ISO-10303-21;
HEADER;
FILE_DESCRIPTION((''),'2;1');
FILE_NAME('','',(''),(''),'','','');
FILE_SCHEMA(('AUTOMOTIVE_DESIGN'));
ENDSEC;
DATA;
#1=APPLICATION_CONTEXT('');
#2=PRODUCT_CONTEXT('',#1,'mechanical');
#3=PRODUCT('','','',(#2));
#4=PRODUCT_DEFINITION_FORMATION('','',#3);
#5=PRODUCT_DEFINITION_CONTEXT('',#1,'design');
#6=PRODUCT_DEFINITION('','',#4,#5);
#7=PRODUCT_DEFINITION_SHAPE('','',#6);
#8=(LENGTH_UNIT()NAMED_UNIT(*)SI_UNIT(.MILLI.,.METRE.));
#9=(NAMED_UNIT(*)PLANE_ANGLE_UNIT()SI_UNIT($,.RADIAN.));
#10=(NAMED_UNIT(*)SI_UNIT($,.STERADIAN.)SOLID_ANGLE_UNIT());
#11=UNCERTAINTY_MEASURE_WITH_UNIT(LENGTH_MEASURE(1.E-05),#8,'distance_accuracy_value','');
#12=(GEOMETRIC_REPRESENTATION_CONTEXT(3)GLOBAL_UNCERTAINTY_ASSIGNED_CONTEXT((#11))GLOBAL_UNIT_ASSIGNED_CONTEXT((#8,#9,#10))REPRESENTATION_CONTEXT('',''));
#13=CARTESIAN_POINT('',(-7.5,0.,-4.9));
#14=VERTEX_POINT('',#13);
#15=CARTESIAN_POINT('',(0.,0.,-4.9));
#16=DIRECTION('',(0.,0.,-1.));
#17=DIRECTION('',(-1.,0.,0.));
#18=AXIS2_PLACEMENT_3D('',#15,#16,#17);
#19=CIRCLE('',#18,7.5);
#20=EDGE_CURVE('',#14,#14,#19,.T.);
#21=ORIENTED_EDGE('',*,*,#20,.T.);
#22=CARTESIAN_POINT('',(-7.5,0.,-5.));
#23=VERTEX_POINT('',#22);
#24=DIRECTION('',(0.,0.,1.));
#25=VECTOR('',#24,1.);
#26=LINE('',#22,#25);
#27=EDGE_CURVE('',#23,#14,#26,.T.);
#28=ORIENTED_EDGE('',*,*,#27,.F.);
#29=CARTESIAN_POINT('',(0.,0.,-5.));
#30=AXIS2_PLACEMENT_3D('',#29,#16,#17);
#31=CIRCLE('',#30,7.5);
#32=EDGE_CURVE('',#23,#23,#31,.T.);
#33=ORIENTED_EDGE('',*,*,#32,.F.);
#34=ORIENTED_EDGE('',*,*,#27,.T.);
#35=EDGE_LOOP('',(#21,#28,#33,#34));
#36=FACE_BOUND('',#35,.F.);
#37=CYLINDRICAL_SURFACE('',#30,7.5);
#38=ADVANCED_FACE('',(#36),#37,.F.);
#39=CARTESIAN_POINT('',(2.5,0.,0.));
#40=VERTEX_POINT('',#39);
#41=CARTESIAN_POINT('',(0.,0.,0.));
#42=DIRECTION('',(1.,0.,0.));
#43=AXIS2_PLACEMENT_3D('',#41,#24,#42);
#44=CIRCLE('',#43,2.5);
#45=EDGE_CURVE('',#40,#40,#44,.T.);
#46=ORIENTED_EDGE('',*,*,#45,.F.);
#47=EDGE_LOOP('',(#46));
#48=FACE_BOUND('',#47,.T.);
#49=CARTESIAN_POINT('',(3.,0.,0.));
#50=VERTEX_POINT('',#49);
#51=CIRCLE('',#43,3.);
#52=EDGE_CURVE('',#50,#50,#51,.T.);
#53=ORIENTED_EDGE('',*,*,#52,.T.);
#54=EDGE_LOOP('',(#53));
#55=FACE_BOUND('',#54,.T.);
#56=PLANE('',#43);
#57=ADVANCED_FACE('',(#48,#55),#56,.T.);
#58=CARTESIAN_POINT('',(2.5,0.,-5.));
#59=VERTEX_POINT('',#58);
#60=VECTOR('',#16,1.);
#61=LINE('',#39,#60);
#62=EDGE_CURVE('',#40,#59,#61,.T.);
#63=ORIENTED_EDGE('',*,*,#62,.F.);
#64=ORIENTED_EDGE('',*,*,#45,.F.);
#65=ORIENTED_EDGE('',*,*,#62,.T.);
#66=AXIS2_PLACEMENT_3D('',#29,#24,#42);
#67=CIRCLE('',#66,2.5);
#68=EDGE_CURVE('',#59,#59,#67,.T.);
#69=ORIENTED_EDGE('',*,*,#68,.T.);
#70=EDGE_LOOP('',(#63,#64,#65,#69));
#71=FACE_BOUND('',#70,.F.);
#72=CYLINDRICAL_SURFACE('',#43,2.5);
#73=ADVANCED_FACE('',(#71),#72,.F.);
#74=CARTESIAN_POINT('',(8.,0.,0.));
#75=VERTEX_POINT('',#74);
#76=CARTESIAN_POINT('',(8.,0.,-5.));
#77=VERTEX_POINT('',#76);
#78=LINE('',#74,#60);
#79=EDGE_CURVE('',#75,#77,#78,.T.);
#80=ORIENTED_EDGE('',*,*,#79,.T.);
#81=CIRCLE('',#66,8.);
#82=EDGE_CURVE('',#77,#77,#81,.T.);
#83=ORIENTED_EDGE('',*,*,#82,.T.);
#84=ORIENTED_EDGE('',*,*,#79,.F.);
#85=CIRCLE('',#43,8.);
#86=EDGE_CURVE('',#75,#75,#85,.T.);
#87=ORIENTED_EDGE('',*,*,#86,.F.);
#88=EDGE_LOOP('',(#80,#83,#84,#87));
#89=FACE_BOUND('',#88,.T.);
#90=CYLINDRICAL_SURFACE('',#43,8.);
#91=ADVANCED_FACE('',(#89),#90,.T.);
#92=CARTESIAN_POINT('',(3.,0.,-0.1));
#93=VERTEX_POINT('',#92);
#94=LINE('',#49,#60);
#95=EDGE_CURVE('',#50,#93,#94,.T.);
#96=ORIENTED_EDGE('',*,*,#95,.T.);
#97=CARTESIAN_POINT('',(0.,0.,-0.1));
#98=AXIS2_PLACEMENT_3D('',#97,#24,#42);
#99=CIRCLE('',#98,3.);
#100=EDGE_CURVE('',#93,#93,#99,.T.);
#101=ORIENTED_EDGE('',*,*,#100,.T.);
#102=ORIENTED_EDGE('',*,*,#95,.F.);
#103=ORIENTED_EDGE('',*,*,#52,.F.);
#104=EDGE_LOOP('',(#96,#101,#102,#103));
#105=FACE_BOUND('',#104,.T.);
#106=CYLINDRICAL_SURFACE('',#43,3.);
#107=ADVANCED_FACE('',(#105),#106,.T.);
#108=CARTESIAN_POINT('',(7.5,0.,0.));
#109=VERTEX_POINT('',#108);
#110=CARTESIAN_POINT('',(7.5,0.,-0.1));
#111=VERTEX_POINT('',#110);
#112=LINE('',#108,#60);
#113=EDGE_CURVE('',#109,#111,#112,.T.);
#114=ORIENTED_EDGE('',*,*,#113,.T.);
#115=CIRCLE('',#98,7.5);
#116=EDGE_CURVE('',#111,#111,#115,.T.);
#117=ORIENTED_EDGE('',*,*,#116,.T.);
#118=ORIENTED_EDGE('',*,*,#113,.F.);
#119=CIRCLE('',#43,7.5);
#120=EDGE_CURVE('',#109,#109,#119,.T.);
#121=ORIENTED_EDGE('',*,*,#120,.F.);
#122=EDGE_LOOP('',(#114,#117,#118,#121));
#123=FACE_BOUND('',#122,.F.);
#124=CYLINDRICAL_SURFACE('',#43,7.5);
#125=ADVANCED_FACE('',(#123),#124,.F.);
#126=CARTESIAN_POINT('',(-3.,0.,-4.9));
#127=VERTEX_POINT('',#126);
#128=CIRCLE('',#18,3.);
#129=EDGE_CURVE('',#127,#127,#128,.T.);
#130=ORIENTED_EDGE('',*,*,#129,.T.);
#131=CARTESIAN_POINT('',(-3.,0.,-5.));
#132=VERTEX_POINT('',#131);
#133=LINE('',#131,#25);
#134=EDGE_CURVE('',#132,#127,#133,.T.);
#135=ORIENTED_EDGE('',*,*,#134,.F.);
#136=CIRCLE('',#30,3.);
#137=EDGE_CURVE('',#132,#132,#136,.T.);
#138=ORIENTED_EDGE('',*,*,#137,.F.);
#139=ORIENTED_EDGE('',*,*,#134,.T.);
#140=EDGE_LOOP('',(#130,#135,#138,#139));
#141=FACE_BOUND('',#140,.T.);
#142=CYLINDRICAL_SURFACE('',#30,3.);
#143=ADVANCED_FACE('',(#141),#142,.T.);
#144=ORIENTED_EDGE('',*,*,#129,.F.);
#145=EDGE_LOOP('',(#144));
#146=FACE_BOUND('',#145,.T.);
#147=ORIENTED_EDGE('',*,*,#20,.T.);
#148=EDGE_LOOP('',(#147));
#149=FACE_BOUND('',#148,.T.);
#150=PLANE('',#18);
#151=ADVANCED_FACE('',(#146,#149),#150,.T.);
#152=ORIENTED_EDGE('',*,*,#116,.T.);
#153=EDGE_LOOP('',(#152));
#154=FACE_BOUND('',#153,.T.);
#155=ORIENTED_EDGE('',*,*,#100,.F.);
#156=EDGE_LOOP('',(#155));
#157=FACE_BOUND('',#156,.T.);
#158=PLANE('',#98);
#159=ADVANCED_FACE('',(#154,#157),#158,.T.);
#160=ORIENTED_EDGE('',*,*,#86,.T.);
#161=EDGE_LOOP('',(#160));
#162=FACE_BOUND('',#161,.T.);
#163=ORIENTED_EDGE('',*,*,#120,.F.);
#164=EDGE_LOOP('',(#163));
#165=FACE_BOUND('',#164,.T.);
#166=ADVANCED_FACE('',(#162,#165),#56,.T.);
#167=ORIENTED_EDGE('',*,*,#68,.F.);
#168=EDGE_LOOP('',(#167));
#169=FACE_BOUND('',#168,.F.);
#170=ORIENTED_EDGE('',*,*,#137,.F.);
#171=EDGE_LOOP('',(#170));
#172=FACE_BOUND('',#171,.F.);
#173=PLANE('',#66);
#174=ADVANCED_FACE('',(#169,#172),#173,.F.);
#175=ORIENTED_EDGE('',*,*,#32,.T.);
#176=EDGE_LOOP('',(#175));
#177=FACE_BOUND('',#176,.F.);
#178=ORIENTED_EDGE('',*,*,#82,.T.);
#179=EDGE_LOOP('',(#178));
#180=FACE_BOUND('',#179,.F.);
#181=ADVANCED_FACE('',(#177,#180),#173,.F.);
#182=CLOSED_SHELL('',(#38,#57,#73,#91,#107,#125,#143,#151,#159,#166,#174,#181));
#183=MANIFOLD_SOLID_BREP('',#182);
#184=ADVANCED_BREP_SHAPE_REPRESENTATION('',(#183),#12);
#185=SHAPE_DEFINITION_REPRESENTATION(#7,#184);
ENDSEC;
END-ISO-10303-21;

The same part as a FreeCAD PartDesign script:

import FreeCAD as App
import Part
import Sketcher

V = App.Vector
Q = App.Units.Quantity

doc = App.newDocument("Part")
body = doc.addObject("PartDesign::Body", "Body")

# Sketch on XY plane
sketch1 = doc.addObject("Sketcher::SketchObject", "Sketch")
body.addObject(sketch1)
sketch1.AttachmentSupport = (doc.XY_Plane, [""])
sketch1.MapMode = "FlatFace"
sketch1.addGeometry(Part.Circle(V(0, 0, 0), V(0, 0, 1), 8), False)
sketch1.addGeometry(Part.Circle(V(0, 0, 0), V(0, 0, 1), 2.5), False)
sketch1.addConstraint(Sketcher.Constraint("Coincident", 0, 3, -1, 1))
sketch1.addConstraint(Sketcher.Constraint("Coincident", 1, 3, -1, 1))
sketch1.addConstraint(Sketcher.Constraint("Diameter", 0, Q("16 mm")))
sketch1.addConstraint(Sketcher.Constraint("Diameter", 1, Q("5 mm")))
pad1 = doc.addObject("PartDesign::Pad", "Pad")
body.addObject(pad1)
pad1.Profile = sketch1
pad1.Length = 5
pad1.Reversed = True

# Sketch on XY plane
sketch2 = doc.addObject("Sketcher::SketchObject", "Sketch001")
body.addObject(sketch2)
sketch2.AttachmentSupport = (doc.XY_Plane, [""])
sketch2.MapMode = "FlatFace"
sketch2.addGeometry(Part.Circle(V(0, 0, 0), V(0, 0, 1), 7.5), False)
sketch2.addGeometry(Part.Circle(V(0, 0, 0), V(0, 0, 1), 3), False)
sketch2.addConstraint(Sketcher.Constraint("Coincident", 0, 3, -1, 1))
sketch2.addConstraint(Sketcher.Constraint("Coincident", 1, 3, -1, 1))
sketch2.addConstraint(Sketcher.Constraint("Diameter", 0, Q("15 mm")))
sketch2.addConstraint(Sketcher.Constraint("Diameter", 1, Q("6 mm")))
pocket1 = doc.addObject("PartDesign::Pocket", "Pocket")
body.addObject(pocket1)
pocket1.Profile = sketch2
pocket1.Length = 0.1

# Sketch on XY plane
sketch3 = doc.addObject("Sketcher::SketchObject", "Sketch002")
body.addObject(sketch3)
sketch3.AttachmentSupport = (doc.XY_Plane, [""])
sketch3.MapMode = "FlatFace"
sketch3.AttachmentOffset = App.Placement(V(0, 0, -5), App.Rotation())
sketch3.addGeometry(Part.Circle(V(0, 0, 0), V(0, 0, 1), 7.5), False)
sketch3.addGeometry(Part.Circle(V(0, 0, 0), V(0, 0, 1), 3), False)
sketch3.addConstraint(Sketcher.Constraint("Coincident", 0, 3, -1, 1))
sketch3.addConstraint(Sketcher.Constraint("Coincident", 1, 3, -1, 1))
sketch3.addConstraint(Sketcher.Constraint("Diameter", 0, Q("15 mm")))
sketch3.addConstraint(Sketcher.Constraint("Diameter", 1, Q("6 mm")))
pocket2 = doc.addObject("PartDesign::Pocket", "Pocket001")
body.addObject(pocket2)
pocket2.Profile = sketch3
pocket2.Length = 0.1
pocket2.Reversed = True

doc.recompute()
